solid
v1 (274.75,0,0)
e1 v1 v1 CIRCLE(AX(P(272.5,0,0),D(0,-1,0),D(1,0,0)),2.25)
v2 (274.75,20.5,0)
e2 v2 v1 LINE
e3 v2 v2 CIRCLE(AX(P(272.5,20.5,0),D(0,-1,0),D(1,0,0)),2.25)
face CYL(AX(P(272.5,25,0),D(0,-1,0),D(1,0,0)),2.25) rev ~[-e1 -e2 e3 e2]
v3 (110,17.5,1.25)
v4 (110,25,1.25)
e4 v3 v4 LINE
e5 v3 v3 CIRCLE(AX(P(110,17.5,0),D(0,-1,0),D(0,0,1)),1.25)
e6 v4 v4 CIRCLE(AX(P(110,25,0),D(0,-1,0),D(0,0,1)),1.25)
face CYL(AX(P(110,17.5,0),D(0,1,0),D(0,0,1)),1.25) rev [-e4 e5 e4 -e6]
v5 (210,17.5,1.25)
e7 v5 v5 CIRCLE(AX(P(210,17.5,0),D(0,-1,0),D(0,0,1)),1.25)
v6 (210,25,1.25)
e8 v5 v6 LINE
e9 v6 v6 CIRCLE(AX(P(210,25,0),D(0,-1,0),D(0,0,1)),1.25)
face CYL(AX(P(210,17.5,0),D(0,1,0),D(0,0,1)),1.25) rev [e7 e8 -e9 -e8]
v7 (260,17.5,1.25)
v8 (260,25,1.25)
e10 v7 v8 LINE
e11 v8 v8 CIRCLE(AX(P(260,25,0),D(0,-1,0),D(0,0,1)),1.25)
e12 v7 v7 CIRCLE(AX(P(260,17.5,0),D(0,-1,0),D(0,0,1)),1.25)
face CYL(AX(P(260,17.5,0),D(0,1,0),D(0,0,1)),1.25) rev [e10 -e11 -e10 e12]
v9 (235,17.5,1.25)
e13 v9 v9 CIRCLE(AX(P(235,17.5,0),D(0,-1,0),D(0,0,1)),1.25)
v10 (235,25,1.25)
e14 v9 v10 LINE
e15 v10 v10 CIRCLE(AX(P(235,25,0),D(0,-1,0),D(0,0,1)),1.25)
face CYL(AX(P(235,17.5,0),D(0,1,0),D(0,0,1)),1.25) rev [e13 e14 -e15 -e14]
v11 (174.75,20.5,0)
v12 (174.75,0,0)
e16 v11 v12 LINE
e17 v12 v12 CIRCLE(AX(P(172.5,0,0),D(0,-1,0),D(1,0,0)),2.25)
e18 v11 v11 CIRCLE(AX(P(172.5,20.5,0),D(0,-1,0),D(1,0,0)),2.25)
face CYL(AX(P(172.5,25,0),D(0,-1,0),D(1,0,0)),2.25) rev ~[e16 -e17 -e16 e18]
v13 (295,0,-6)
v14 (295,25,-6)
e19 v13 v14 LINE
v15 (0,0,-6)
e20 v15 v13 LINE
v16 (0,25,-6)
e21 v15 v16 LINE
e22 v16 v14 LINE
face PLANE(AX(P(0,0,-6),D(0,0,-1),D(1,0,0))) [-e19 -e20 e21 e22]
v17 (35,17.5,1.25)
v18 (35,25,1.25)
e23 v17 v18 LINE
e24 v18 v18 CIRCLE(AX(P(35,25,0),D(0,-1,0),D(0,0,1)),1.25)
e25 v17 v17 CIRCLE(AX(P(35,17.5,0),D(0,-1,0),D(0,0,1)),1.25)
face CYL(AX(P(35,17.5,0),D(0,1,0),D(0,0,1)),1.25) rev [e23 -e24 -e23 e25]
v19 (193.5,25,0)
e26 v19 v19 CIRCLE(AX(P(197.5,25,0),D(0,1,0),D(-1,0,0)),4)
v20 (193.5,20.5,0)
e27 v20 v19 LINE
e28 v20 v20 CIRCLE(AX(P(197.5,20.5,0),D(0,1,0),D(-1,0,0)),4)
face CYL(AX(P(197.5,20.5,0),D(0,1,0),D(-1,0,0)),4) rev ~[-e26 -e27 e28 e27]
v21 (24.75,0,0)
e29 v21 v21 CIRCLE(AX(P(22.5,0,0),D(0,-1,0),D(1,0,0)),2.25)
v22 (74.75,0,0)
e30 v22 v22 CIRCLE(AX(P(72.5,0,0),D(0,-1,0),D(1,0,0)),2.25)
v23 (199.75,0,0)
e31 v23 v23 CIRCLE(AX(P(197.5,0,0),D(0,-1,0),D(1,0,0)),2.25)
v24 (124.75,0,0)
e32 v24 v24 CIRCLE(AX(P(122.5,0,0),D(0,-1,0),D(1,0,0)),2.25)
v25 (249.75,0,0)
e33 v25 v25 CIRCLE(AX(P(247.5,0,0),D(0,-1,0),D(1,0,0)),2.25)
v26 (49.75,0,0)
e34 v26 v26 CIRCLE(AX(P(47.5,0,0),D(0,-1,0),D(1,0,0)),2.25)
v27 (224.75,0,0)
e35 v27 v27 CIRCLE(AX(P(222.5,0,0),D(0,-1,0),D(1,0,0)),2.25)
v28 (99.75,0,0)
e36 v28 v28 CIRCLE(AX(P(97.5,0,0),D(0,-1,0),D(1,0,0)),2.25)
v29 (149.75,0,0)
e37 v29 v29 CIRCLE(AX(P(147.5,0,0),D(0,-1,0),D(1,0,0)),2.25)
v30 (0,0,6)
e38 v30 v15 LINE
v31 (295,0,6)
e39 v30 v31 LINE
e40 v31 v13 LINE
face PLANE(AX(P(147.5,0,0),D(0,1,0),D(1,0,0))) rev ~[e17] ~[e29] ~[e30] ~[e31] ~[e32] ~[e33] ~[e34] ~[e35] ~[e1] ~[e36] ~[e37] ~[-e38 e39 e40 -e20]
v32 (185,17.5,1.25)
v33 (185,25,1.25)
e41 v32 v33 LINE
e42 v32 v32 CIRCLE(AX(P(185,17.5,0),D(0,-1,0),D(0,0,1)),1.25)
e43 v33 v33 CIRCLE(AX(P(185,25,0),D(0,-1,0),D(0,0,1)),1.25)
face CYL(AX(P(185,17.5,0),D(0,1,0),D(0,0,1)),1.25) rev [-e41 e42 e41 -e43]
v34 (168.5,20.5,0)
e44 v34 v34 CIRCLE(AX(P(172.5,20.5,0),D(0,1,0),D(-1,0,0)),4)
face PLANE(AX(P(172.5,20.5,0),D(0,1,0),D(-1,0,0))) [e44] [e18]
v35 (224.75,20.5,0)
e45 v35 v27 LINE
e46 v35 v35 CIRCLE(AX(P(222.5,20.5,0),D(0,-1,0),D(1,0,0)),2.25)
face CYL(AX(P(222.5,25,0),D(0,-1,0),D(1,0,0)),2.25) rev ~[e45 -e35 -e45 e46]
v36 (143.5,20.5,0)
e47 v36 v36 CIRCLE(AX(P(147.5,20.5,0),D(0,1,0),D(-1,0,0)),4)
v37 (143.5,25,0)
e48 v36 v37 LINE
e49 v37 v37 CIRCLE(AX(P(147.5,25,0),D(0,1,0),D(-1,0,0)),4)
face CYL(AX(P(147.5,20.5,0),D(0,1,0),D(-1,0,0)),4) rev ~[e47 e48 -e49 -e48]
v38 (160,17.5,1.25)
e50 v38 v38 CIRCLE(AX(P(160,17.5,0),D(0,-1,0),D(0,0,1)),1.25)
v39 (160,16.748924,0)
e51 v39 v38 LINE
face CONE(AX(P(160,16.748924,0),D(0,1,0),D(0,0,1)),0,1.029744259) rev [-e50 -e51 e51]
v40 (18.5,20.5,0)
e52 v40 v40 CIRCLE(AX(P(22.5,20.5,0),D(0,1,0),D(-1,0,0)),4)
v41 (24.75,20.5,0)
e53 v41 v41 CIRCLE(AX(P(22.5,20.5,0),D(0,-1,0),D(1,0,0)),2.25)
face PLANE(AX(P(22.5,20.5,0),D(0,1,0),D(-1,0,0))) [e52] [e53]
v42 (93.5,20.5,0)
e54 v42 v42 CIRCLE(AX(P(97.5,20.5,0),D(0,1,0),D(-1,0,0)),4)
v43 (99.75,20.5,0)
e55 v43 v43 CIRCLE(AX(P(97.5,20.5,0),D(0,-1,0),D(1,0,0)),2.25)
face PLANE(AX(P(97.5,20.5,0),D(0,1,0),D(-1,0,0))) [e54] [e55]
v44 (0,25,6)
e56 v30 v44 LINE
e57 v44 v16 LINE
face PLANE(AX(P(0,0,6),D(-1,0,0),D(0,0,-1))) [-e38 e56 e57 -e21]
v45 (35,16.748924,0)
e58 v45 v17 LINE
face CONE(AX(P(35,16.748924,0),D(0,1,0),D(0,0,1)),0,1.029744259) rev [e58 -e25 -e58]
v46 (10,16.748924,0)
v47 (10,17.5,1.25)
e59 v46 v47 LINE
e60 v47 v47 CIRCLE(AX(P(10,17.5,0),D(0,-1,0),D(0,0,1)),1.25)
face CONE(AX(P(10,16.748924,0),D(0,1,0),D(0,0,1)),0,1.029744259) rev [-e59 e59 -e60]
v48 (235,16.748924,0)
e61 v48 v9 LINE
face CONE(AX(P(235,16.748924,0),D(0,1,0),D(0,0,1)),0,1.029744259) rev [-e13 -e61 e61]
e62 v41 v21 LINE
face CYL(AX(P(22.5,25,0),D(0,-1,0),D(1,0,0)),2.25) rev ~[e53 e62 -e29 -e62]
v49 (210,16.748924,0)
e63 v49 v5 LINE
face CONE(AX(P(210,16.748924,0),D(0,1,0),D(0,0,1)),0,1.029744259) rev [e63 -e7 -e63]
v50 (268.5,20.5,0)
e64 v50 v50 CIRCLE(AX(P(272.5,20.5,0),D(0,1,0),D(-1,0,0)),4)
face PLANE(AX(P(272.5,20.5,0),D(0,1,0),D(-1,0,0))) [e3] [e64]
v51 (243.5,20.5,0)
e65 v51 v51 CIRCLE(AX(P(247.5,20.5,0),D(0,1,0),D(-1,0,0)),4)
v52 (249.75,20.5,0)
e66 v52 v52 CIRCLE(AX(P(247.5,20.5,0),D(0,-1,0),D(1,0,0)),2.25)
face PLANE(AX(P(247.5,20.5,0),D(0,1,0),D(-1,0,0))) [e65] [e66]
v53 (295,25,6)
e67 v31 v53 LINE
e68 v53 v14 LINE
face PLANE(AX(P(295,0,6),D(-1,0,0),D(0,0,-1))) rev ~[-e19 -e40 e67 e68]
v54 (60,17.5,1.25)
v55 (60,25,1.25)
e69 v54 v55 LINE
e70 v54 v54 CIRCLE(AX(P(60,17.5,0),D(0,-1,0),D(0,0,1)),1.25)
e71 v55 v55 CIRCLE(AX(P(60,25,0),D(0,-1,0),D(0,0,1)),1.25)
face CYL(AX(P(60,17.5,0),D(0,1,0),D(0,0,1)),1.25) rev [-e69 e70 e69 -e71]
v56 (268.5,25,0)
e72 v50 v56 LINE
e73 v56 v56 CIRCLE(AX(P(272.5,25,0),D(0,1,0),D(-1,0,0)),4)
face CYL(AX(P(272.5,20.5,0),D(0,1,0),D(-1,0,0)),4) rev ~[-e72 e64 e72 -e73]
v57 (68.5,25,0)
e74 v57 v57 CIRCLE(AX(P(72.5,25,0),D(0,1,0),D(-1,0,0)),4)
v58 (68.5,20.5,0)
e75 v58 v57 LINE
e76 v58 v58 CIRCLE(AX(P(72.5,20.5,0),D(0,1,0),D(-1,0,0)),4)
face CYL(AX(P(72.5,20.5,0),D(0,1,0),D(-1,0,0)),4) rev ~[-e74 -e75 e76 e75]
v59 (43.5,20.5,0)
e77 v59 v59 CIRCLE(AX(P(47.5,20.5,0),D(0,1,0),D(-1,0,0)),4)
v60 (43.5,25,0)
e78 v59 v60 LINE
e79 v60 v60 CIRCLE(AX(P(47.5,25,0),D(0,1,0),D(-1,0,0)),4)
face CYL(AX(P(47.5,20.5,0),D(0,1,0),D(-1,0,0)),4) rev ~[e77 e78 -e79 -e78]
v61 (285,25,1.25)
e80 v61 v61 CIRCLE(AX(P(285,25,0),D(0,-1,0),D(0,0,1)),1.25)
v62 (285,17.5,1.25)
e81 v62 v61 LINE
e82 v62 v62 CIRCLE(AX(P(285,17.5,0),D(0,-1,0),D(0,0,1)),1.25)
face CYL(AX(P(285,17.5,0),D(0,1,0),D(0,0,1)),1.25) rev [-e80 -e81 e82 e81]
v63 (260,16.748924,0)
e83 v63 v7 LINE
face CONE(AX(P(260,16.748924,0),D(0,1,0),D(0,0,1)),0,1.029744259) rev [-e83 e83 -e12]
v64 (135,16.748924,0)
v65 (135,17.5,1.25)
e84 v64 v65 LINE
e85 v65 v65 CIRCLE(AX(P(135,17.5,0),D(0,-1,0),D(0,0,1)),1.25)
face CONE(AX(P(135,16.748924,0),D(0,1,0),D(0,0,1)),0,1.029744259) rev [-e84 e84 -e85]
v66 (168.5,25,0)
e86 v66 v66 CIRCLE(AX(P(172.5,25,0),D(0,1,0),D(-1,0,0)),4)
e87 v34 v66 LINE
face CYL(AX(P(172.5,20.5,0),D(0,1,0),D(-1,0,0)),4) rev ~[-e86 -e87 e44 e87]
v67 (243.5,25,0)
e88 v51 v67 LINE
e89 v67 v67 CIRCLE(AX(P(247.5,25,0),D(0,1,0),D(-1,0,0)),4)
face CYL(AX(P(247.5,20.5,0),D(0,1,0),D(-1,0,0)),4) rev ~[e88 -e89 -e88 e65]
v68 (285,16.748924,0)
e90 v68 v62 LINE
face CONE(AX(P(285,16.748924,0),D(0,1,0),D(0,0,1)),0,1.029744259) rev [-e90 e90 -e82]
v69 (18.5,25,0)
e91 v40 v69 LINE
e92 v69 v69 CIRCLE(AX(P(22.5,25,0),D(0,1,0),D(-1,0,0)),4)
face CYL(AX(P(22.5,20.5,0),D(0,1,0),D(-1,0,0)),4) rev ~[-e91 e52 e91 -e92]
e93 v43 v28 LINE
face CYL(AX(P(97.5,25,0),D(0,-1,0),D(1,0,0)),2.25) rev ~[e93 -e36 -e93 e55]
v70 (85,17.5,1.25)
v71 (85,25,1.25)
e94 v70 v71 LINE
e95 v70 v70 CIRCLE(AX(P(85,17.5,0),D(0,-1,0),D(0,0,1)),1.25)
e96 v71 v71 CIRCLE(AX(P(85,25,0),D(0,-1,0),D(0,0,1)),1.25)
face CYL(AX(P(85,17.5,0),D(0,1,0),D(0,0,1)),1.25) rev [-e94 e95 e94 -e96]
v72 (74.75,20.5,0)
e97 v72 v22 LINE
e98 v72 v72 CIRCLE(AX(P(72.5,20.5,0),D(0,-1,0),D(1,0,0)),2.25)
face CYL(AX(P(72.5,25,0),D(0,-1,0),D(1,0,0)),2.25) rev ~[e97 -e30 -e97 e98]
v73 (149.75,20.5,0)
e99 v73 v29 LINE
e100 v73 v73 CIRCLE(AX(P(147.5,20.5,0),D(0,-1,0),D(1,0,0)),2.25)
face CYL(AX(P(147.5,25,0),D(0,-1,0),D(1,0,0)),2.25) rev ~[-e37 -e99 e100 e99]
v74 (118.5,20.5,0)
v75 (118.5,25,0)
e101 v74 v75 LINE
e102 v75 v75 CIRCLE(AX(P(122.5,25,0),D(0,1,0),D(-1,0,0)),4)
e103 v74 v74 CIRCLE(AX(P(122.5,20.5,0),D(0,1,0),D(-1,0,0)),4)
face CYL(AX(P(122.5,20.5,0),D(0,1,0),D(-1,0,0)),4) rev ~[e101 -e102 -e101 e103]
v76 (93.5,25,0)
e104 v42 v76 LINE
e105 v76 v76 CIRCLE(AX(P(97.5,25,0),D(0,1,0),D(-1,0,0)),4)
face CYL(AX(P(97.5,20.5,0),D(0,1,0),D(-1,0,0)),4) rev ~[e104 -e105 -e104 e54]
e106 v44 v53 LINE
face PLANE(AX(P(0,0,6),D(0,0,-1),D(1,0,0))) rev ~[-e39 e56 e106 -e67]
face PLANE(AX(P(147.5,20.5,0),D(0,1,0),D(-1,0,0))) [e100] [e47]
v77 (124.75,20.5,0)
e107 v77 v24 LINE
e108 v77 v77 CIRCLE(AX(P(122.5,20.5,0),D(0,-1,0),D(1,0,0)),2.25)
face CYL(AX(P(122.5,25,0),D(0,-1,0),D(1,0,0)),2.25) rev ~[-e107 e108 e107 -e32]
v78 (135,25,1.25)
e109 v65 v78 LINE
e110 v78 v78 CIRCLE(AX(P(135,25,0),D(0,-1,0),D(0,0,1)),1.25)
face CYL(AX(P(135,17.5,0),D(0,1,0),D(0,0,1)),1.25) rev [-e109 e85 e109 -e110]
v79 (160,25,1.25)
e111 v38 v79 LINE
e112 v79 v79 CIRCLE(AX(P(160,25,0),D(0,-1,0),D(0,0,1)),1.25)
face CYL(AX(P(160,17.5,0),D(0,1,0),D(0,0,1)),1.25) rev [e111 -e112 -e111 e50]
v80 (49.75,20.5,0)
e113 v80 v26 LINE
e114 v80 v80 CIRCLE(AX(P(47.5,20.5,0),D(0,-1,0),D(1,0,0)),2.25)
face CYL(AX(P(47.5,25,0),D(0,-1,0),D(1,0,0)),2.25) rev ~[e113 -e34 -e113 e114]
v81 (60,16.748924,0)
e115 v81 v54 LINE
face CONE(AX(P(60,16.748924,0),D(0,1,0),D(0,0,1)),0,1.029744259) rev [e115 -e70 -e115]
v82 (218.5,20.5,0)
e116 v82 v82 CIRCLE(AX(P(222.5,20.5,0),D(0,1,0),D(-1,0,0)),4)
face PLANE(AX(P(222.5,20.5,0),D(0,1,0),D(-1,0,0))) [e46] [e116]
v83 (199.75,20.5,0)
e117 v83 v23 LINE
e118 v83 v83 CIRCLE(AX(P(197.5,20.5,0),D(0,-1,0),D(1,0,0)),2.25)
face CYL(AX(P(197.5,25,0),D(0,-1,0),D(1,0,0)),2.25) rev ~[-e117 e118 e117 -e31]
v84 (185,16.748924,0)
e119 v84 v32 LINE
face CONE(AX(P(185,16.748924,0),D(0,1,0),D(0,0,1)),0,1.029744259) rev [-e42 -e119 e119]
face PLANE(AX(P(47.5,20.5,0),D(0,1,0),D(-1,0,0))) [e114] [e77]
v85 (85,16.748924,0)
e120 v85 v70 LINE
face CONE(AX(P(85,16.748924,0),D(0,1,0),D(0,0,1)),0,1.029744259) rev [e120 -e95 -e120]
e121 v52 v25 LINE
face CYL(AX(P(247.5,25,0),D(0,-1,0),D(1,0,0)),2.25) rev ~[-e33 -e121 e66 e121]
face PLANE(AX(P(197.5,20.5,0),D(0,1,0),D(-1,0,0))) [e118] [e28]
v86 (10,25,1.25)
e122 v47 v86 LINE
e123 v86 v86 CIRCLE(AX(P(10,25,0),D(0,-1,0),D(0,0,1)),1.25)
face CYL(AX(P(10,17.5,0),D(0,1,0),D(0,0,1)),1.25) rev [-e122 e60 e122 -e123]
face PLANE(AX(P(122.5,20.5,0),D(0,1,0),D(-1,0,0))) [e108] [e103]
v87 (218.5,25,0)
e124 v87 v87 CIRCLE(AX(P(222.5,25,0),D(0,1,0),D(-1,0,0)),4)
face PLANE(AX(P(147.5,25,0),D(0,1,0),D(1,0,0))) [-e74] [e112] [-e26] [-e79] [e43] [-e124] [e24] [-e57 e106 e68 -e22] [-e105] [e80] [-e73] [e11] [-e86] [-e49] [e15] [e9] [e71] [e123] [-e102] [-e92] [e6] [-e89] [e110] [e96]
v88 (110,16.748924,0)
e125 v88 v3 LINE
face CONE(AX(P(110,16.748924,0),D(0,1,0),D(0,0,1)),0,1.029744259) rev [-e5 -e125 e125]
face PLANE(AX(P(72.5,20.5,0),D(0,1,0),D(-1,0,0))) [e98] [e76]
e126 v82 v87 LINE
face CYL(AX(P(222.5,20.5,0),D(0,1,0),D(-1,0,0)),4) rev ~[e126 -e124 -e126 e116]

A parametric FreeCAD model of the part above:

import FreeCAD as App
import Part
import Sketcher

V = App.Vector
Q = App.Units.Quantity

doc = App.newDocument("Part")
params = doc.addObject("Spreadsheet::Sheet", "Params")
for row, (alias, value) in enumerate([
    ("sketch1_width", "295 mm"),
    ("sketch1_height", "12 mm"),
    ("pad1_length", "25 mm"),
    ("sketch2_width", "7.5 mm"),
    ("sketch2_height", "1.25 mm"),
    ("groove_angle", "360 deg"),
    ("linearpattern_pitch", "25 mm"),
    ("sketch3_diameter", "4.5 mm"),
    ("hole_diameter", "4.5 mm"),
    ("hole_cbore_diameter", "8 mm"),
    ("hole_cbore_depth", "4.5 mm"),
    ("linearpattern2_pitch", "25 mm"),
], start=1):
    params.set(f"A{row}", alias)
    params.set(f"B{row}", "=" + value)
    params.setAlias(f"B{row}", alias)

body = doc.addObject("PartDesign::Body", "Body")

# Sketch on XZ plane
sketch1 = body.newObject("Sketcher::SketchObject", "Sketch")
sketch1.AttachmentSupport = (doc.getObject("XZ_Plane"), [""])
sketch1.MapMode = "FlatFace"
sketch1.addGeometry(Part.LineSegment(V(0, -6, 0), V(0, 6, 0)), False)
sketch1.addGeometry(Part.LineSegment(V(0, 6, 0), V(295, 6, 0)), False)
sketch1.addGeometry(Part.LineSegment(V(295, 6, 0), V(295, -6, 0)), False)
sketch1.addGeometry(Part.LineSegment(V(295, -6, 0), V(0, -6, 0)), False)
sketch1.addConstraint(Sketcher.Constraint("Coincident", 0, 2, 1, 1))
sketch1.addConstraint(Sketcher.Constraint("Coincident", 1, 2, 2, 1))
sketch1.addConstraint(Sketcher.Constraint("Coincident", 2, 2, 3, 1))
sketch1.addConstraint(Sketcher.Constraint("Coincident", 3, 2, 0, 1))
sketch1.addConstraint(Sketcher.Constraint("Vertical", 0))
sketch1.addConstraint(Sketcher.Constraint("Horizontal", 1))
sketch1.addConstraint(Sketcher.Constraint("Vertical", 2))
sketch1.addConstraint(Sketcher.Constraint("Horizontal", 3))
sketch1.addConstraint(Sketcher.Constraint("Symmetric", 0, 2, 3, 2, -1, 1))
sketch1.addConstraint(Sketcher.Constraint("DistanceX", 1, 1, 1, 2, 295.0))
sketch1.addConstraint(Sketcher.Constraint("DistanceY", 0, 1, 0, 2, 12.0))
sketch1.setExpression("Constraints[9]", "Params.sketch1_width")
sketch1.setExpression("Constraints[10]", "Params.sketch1_height")
pad1 = body.newObject("PartDesign::Pad", "Pad")
pad1.Profile = sketch1
pad1.setExpression("Length", "Params.pad1_length")
pad1.Reversed = True

# Sketch on YZ plane
sketch2 = body.newObject("Sketcher::SketchObject", "Sketch001")
sketch2.AttachmentSupport = (doc.getObject("YZ_Plane"), [""])
sketch2.MapMode = "FlatFace"
sketch2.AttachmentOffset = App.Placement(V(0, 0, 10), App.Rotation())
sketch2.addGeometry(Part.LineSegment(V(16.748924, 0, 0), V(25, 0, 0)), False)
sketch2.addGeometry(Part.LineSegment(V(25, 0, 0), V(25, 1.25, 0)), False)
sketch2.addGeometry(Part.LineSegment(V(25, 1.25, 0), V(17.5, 1.25, 0)), False)
sketch2.addGeometry(Part.LineSegment(V(17.5, 1.25, 0), V(16.748924, 0, 0)), False)
sketch2.addConstraint(Sketcher.Constraint("Coincident", 0, 2, 1, 1))
sketch2.addConstraint(Sketcher.Constraint("Coincident", 1, 2, 2, 1))
sketch2.addConstraint(Sketcher.Constraint("Coincident", 2, 2, 3, 1))
sketch2.addConstraint(Sketcher.Constraint("Coincident", 3, 2, 0, 1))
sketch2.addConstraint(Sketcher.Constraint("Horizontal", 0))
sketch2.addConstraint(Sketcher.Constraint("Vertical", 1))
sketch2.addConstraint(Sketcher.Constraint("Horizontal", 2))
sketch2.addConstraint(Sketcher.Constraint("PointOnObject", 0, 2, -1))
sketch2.addConstraint(Sketcher.Constraint("Angle", 3, Q("-121 deg")))
sketch2.addConstraint(Sketcher.Constraint("DistanceX", 2, 2, 2, 1, 7.5))
sketch2.addConstraint(Sketcher.Constraint("DistanceX", -1, 1, 0, 2, 25.0))
sketch2.addConstraint(Sketcher.Constraint("DistanceY", 1, 1, 1, 2, 1.25))
sketch2.setExpression("Constraints[9]", "Params.sketch2_width")
sketch2.setExpression("Constraints[11]", "Params.sketch2_height")
groove = body.newObject("PartDesign::Groove", "Groove")
groove.Profile = sketch2
groove.ReferenceAxis = (sketch2, ["H_Axis"])
groove.setExpression("Angle", "Params.groove_angle")
doc.recompute()

linearpattern = body.newObject("PartDesign::LinearPattern", "LinearPattern")
linearpattern.Originals = [groove]
linearpattern.Direction = (doc.getObject("X_Axis"), [""])
linearpattern.Mode = "offset"
linearpattern.setExpression("Offset", "Params.linearpattern_pitch")
linearpattern.Occurrences = 12
body.Tip = linearpattern

# Sketch on XZ plane
sketch3 = body.newObject("Sketcher::SketchObject", "Sketch002")
sketch3.AttachmentSupport = (doc.getObject("XZ_Plane"), [""])
sketch3.MapMode = "FlatFace"
sketch3.AttachmentOffset = App.Placement(V(0, 0, -25), App.Rotation())
sketch3.addGeometry(Part.Circle(V(22.5, 0, 0), V(0, 0, 1), 2.25), False)
sketch3.addConstraint(Sketcher.Constraint("PointOnObject", 0, 3, -1))
sketch3.addConstraint(Sketcher.Constraint("Diameter", 0, 4.5))
sketch3.addConstraint(Sketcher.Constraint("DistanceX", -1, 1, 0, 3, 22.5))
sketch3.setExpression("Constraints[1]", "Params.sketch3_diameter")
doc.recompute()
hole = body.newObject("PartDesign::Hole", "Hole")
hole.Profile = sketch3
hole.ThreadType = "None"
hole.setExpression("Diameter", "Params.hole_diameter")
hole.DepthType = "ThroughAll"
hole.HoleCutType = "Counterbore"
hole.setExpression("HoleCutDiameter", "Params.hole_cbore_diameter")
hole.setExpression("HoleCutDepth", "Params.hole_cbore_depth")
hole.Reversed = True
doc.recompute()

linearpattern2 = body.newObject("PartDesign::LinearPattern", "LinearPattern001")
linearpattern2.Originals = [hole]
linearpattern2.Direction = (doc.getObject("X_Axis"), [""])
linearpattern2.Mode = "offset"
linearpattern2.setExpression("Offset", "Params.linearpattern2_pitch")
linearpattern2.Occurrences = 11
body.Tip = linearpattern2

doc.recompute()
